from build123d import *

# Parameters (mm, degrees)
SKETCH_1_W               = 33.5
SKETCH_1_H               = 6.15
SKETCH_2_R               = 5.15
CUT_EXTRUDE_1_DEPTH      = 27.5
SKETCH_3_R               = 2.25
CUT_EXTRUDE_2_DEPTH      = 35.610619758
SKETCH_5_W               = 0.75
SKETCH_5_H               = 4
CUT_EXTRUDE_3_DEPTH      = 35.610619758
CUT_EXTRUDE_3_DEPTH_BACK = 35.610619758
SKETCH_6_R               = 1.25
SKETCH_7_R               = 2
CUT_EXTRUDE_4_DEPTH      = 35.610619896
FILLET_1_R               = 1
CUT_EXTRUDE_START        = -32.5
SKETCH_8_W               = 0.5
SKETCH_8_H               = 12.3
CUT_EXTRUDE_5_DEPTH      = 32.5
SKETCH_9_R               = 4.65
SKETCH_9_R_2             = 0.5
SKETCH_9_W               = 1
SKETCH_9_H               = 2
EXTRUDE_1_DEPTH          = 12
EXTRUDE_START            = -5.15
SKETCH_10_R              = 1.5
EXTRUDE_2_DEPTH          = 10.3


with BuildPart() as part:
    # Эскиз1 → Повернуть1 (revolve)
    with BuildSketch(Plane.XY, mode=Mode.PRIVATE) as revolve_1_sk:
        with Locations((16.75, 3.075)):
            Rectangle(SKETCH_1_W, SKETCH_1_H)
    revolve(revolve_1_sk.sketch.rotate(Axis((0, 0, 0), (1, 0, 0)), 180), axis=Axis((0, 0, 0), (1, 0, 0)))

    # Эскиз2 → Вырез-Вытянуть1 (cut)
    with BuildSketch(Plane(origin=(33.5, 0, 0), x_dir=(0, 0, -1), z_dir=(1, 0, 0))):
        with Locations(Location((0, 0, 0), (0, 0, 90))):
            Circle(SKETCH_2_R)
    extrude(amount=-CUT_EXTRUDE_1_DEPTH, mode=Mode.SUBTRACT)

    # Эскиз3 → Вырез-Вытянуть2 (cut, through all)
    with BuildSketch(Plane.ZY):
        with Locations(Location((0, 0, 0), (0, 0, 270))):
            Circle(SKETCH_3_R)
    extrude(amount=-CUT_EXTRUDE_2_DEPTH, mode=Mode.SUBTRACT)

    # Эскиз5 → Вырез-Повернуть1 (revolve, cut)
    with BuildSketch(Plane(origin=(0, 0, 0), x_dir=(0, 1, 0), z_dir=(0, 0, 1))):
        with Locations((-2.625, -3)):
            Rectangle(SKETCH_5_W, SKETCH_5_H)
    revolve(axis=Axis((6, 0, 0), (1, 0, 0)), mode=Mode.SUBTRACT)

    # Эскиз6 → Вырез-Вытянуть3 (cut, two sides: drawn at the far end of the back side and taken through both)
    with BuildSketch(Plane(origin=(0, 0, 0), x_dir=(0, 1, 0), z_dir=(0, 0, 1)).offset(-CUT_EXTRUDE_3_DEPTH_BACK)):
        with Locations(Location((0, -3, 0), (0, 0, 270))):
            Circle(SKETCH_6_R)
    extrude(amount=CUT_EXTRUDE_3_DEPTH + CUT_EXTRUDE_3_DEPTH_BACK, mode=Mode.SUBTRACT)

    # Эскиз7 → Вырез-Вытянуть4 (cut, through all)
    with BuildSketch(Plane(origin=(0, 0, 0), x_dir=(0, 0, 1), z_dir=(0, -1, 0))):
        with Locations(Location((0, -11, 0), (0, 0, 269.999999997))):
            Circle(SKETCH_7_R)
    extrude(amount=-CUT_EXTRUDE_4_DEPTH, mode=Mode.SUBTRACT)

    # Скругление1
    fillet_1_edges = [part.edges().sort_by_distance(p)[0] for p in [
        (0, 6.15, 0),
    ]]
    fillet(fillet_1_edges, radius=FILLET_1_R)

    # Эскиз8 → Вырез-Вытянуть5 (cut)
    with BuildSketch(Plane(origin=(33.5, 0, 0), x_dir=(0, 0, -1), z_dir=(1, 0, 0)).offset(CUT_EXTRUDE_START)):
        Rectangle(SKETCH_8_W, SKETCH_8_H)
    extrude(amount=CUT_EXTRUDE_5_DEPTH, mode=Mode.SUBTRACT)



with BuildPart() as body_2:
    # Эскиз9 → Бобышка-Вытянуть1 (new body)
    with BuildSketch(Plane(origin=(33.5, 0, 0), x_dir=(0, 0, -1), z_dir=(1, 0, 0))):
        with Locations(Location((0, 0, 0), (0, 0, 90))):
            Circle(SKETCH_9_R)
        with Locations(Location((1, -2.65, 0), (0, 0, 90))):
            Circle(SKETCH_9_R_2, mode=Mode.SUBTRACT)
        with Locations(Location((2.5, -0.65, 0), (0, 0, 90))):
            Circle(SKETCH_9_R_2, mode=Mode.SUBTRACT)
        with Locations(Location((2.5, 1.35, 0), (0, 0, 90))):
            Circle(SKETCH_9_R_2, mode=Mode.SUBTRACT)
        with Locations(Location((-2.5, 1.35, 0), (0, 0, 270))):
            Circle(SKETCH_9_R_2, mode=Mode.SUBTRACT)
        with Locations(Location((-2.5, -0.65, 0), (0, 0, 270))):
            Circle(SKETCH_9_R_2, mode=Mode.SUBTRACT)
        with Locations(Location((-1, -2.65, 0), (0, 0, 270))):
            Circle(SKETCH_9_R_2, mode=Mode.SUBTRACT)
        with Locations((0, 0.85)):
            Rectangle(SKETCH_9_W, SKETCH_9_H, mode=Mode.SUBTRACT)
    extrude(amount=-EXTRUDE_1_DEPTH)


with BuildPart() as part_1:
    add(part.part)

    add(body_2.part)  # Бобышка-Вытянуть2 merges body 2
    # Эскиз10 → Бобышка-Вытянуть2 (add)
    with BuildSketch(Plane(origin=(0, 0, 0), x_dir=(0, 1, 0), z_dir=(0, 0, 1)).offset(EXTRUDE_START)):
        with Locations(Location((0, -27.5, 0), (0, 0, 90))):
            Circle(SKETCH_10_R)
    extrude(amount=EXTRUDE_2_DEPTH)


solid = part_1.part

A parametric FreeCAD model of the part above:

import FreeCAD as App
import Part
import Sketcher

V = App.Vector


def edges_at(feature, points):
    """Names of the edges that pass closest to the given points."""
    edges = feature.Shape.Edges
    near = lambda p: min(range(len(edges)), key=lambda i: edges[i].distToShape(Part.Vertex(*p))[0])
    return sorted({f"Edge{near(p) + 1}" for p in points})

doc = App.newDocument("Part")
body = doc.addObject("PartDesign::Body", "Body")

sketch1 = body.newObject("Sketcher::SketchObject", "Sketch")
sketch1.AttachmentSupport = (doc.getObject("XY_Plane"), [""])
sketch1.MapMode = "FlatFace"
sketch1.addGeometry([
    Part.LineSegment(V(0, 6.15, 0), V(0, 0, 0)),
    Part.LineSegment(V(0, 0, 0), V(33.5, 0, 0)),
    Part.LineSegment(V(33.5, 0, 0), V(33.5, 6.15, 0)),
    Part.LineSegment(V(33.5, 6.15, 0), V(0, 6.15, 0)),
], False)
sketch1.addConstraint([
    Sketcher.Constraint("Coincident", 0, 2, 1, 1),
    Sketcher.Constraint("Coincident", 1, 2, 2, 1),
    Sketcher.Constraint("Coincident", 2, 2, 3, 1),
    Sketcher.Constraint("Coincident", 3, 2, 0, 1),
    Sketcher.Constraint("Vertical", 0),
    Sketcher.Constraint("Horizontal", 1),
    Sketcher.Constraint("Vertical", 2),
    Sketcher.Constraint("Horizontal", 3),
    Sketcher.Constraint("Coincident", 0, 2, -1, 1),
    Sketcher.Constraint("DistanceX", 1, 1, 1, 2, 33.5),
    Sketcher.Constraint("DistanceY", 0, 2, 0, 1, 6.15),
])
revolution = body.newObject("PartDesign::Revolution", "Revolution")
revolution.Profile = sketch1
revolution.ReferenceAxis = (sketch1, ["H_Axis"])
revolution.Angle = 360

sketch2 = body.newObject("Sketcher::SketchObject", "Sketch001")
sketch2.AttachmentSupport = (doc.getObject("YZ_Plane"), [""])
sketch2.MapMode = "FlatFace"
sketch2.AttachmentOffset = App.Placement(V(0, 0, 33.5), App.Rotation())
sketch2.addGeometry(Part.Circle(V(0, 0, 0), V(0, 0, 1), 5.15), False)
sketch2.addConstraint([
    Sketcher.Constraint("Coincident", 0, 3, -1, 1),
    Sketcher.Constraint("Diameter", 0, 10.3),
])
pocket1 = body.newObject("PartDesign::Pocket", "Pocket")
pocket1.Profile = sketch2
pocket1.Length = 27.5

sketch3 = body.newObject("Sketcher::SketchObject", "Sketch002")
sketch3.AttachmentSupport = (doc.getObject("YZ_Plane"), [""])
sketch3.MapMode = "FlatFace"
sketch3.addGeometry(Part.Circle(V(0, 0, 0), V(0, 0, 1), 2.25), False)
sketch3.addConstraint([
    Sketcher.Constraint("Coincident", 0, 3, -1, 1),
    Sketcher.Constraint("Diameter", 0, 4.5),
])
pocket2 = body.newObject("PartDesign::Pocket", "Pocket001")
pocket2.Profile = sketch3
pocket2.Type = "ThroughAll"
pocket2.Reversed = True

sketch4 = body.newObject("Sketcher::SketchObject", "Sketch003")
sketch4.AttachmentSupport = (doc.getObject("XY_Plane"), [""])
sketch4.MapMode = "FlatFace"
sketch4.addGeometry([
    Part.LineSegment(V(1, -3, 0), V(5, -3, 0)),
    Part.LineSegment(V(5, -3, 0), V(5, -2.25, 0)),
    Part.LineSegment(V(5, -2.25, 0), V(1, -2.25, 0)),
    Part.LineSegment(V(1, -2.25, 0), V(1, -3, 0)),
], False)
sketch4.addConstraint([
    Sketcher.Constraint("Coincident", 0, 2, 1, 1),
    Sketcher.Constraint("Coincident", 1, 2, 2, 1),
    Sketcher.Constraint("Coincident", 2, 2, 3, 1),
    Sketcher.Constraint("Coincident", 3, 2, 0, 1),
    Sketcher.Constraint("Horizontal", 0),
    Sketcher.Constraint("Vertical", 1),
    Sketcher.Constraint("Horizontal", 2),
    Sketcher.Constraint("Vertical", 3),
    Sketcher.Constraint("DistanceX", 0, 1, 0, 2, 4.0),
    Sketcher.Constraint("DistanceX", -1, 1, 0, 2, 5.0),
    Sketcher.Constraint("DistanceY", 0, 2, -1, 1, 3.0),
    Sketcher.Constraint("DistanceY", 1, 1, 1, 2, 0.75),
])
groove = body.newObject("PartDesign::Groove", "Groove")
groove.Profile = sketch4
groove.ReferenceAxis = (sketch4, ["H_Axis"])
groove.Angle = 360

sketch5 = body.newObject("Sketcher::SketchObject", "Sketch004")
sketch5.AttachmentSupport = (doc.getObject("XY_Plane"), [""])
sketch5.MapMode = "FlatFace"
sketch5.addGeometry(Part.Circle(V(3, 0, 0), V(0, 0, 1), 1.25), False)
sketch5.addConstraint([
    Sketcher.Constraint("PointOnObject", 0, 3, -1),
    Sketcher.Constraint("Diameter", 0, 2.5),
    Sketcher.Constraint("DistanceX", -1, 1, 0, 3, 3.0),
])
pocket3 = body.newObject("PartDesign::Pocket", "Pocket002")
pocket3.Profile = sketch5
pocket3.Type = "ThroughAll"
pocket3.Midplane = True

sketch6 = body.newObject("Sketcher::SketchObject", "Sketch005")
sketch6.AttachmentSupport = (doc.getObject("XZ_Plane"), [""])
sketch6.MapMode = "FlatFace"
sketch6.addGeometry(Part.Circle(V(11, 0, 0), V(0, 0, 1), 2), False)
sketch6.addConstraint([
    Sketcher.Constraint("PointOnObject", 0, 3, -1),
    Sketcher.Constraint("Diameter", 0, 4.0),
    Sketcher.Constraint("DistanceX", -1, 1, 0, 3, 11.0),
])
pocket4 = body.newObject("PartDesign::Pocket", "Pocket003")
pocket4.Profile = sketch6
pocket4.Type = "ThroughAll"
doc.recompute()

fillet = body.newObject("PartDesign::Fillet", "Fillet")
fillet.Base = (pocket4, edges_at(pocket4, [(0, 6.15, 0)]))
fillet.Radius = 1

sketch7 = body.newObject("Sketcher::SketchObject", "Sketch006")
sketch7.AttachmentSupport = (doc.getObject("YZ_Plane"), [""])
sketch7.MapMode = "FlatFace"
sketch7.AttachmentOffset = App.Placement(V(0, 0, 1), App.Rotation())
sketch7.addGeometry([
    Part.LineSegment(V(6.15, 0.25, 0), V(-6.15, 0.25, 0)),
    Part.LineSegment(V(-6.15, 0.25, 0), V(-6.15, -0.25, 0)),
    Part.LineSegment(V(-6.15, -0.25, 0), V(6.15, -0.25, 0)),
    Part.LineSegment(V(6.15, -0.25, 0), V(6.15, 0.25, 0)),
], False)
sketch7.addConstraint([
    Sketcher.Constraint("Coincident", 0, 2, 1, 1),
    Sketcher.Constraint("Coincident", 1, 2, 2, 1),
    Sketcher.Constraint("Coincident", 2, 2, 3, 1),
    Sketcher.Constraint("Coincident", 3, 2, 0, 1),
    Sketcher.Constraint("Horizontal", 0),
    Sketcher.Constraint("Vertical", 1),
    Sketcher.Constraint("Horizontal", 2),
    Sketcher.Constraint("Vertical", 3),
    Sketcher.Constraint("Symmetric", 0, 2, 2, 2, -1, 1),
    Sketcher.Constraint("DistanceX", 0, 2, 0, 1, 12.3),
    Sketcher.Constraint("DistanceY", 1, 2, 1, 1, 0.5),
])
pocket5 = body.newObject("PartDesign::Pocket", "Pocket004")
pocket5.Profile = sketch7
pocket5.Length = 32.5
pocket5.Reversed = True
body2 = doc.addObject("PartDesign::Body", "Body001")

sketch8 = body2.newObject("Sketcher::SketchObject", "Sketch007")
sketch8.AttachmentSupport = (doc.getObject("YZ_Plane001"), [""])
sketch8.MapMode = "FlatFace"
sketch8.AttachmentOffset = App.Placement(V(0, 0, 33.5), App.Rotation())
sketch8.addGeometry([
    Part.Circle(V(0, 0, 0), V(0, 0, 1), 4.65),
    Part.Circle(V(-2.65, -1, 0), V(0, 0, 1), 0.5),
    Part.Circle(V(-0.65, -2.5, 0), V(0, 0, 1), 0.5),
    Part.Circle(V(1.35, -2.5, 0), V(0, 0, 1), 0.5),
    Part.Circle(V(-2.65, 1, 0), V(0, 0, 1), 0.5),
    Part.Circle(V(-0.65, 2.5, 0), V(0, 0, 1), 0.5),
    Part.LineSegment(V(-0.15, -0.5, 0), V(-0.15, 0.5, 0)),
    Part.LineSegment(V(-0.15, 0.5, 0), V(1.85, 0.5, 0)),
    Part.LineSegment(V(1.85, 0.5, 0), V(1.85, -0.5, 0)),
    Part.LineSegment(V(1.85, -0.5, 0), V(-0.15, -0.5, 0)),
    Part.Circle(V(1.35, 2.5, 0), V(0, 0, 1), 0.5),
], False)
sketch8.addConstraint([
    Sketcher.Constraint("Coincident", 6, 2, 7, 1),
    Sketcher.Constraint("Coincident", 7, 2, 8, 1),
    Sketcher.Constraint("Coincident", 8, 2, 9, 1),
    Sketcher.Constraint("Coincident", 9, 2, 6, 1),
    Sketcher.Constraint("Vertical", 6),
    Sketcher.Constraint("Horizontal", 7),
    Sketcher.Constraint("Vertical", 8),
    Sketcher.Constraint("Horizontal", 9),
    Sketcher.Constraint("Coincident", 0, 3, -1, 1),
    Sketcher.Constraint("Equal", 1, 2),
    Sketcher.Constraint("Equal", 2, 3),
    Sketcher.Constraint("Equal", 3, 4),
    Sketcher.Constraint("Equal", 4, 5),
    Sketcher.Constraint("Equal", 5, 10),
    Sketcher.Constraint("Symmetric", 1, 3, 4, 3, -1),
    Sketcher.Constraint("Symmetric", 2, 3, 5, 3, -1),
    Sketcher.Constraint("Symmetric", 3, 3, 10, 3, -1),
    Sketcher.Constraint("Horizontal", 2, 3, 3, 3),
    Sketcher.Constraint("Diameter", 1, 1.0),
    Sketcher.Constraint("Diameter", 0, 9.3),
    Sketcher.Constraint("DistanceX", 7, 1, 7, 2, 2.0),
    Sketcher.Constraint("DistanceY", 6, 1, 6, 2, 1.0),
    Sketcher.Constraint("DistanceY", 1, 3, -1, 1, 1.0),
    Sketcher.Constraint("DistanceX", 1, 3, 2, 3, 2.0),
    Sketcher.Constraint("DistanceX", 2, 3, 3, 3, 2.0),
    Sketcher.Constraint("DistanceY", 2, 3, 5, 3, 5.0),
    Sketcher.Constraint("DistanceY", 6, 2, 5, 3, 2.0),
    Sketcher.Constraint("DistanceX", 5, 3, 6, 2, 0.5),
    Sketcher.Constraint("DistanceX", 1, 3, -1, 1, 2.65),
])
pad1 = body2.newObject("PartDesign::Pad", "Pad")
pad1.Profile = sketch8
pad1.Length = 12
pad1.Reversed = True
body.AllowCompound = True
doc.recompute()

boolean = body.newObject("PartDesign::Boolean", "Boolean")
boolean.Type = "Fuse"
boolean.addObjects([body2])

sketch9 = body.newObject("Sketcher::SketchObject", "Sketch008")
sketch9.AttachmentSupport = (doc.getObject("XY_Plane"), [""])
sketch9.MapMode = "FlatFace"
sketch9.AttachmentOffset = App.Placement(V(0, 0, -5.15), App.Rotation())
sketch9.addGeometry(Part.Circle(V(27.5, 0, 0), V(0, 0, 1), 1.5), False)
sketch9.addConstraint([
    Sketcher.Constraint("PointOnObject", 0, 3, -1),
    Sketcher.Constraint("Diameter", 0, 3.0),
    Sketcher.Constraint("DistanceX", -1, 1, 0, 3, 27.5),
])
pad2 = body.newObject("PartDesign::Pad", "Pad001")
pad2.Profile = sketch9
pad2.Length = 10.3

doc.recompute()
